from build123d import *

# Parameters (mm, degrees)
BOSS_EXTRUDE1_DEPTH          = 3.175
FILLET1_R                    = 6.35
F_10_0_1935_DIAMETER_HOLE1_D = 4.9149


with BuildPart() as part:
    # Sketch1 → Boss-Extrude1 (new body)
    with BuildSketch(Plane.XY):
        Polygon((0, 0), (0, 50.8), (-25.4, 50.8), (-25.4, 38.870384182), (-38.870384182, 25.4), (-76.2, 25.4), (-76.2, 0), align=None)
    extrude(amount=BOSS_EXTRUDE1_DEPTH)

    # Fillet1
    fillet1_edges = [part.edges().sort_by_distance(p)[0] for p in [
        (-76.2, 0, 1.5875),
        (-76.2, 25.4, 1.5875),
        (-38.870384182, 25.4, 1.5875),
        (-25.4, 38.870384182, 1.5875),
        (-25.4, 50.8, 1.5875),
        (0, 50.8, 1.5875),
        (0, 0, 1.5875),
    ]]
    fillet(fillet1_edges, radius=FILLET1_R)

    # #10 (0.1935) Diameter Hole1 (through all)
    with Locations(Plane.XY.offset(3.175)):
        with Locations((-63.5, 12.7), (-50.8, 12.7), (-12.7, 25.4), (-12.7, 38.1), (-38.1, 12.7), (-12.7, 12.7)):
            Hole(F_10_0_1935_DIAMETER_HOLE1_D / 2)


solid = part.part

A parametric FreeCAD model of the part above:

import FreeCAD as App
import Part
import Sketcher
from FreeCAD import Vector
Q = App.Units.Quantity


def edges_at(feature, points):
    """Names of the edges that pass closest to the given points."""
    edges = feature.Shape.Edges
    near = lambda p: min(range(len(edges)), key=lambda i: edges[i].distToShape(Part.Vertex(*p))[0])
    return sorted({f"Edge{near(p) + 1}" for p in points})

doc = App.newDocument("Part")
params = doc.addObject("Spreadsheet::Sheet", "Params")
for row, (alias, value) in enumerate([
    ("sketch1_width", "1 in"),
    ("sketch1_width2", "3 in"),
    ("sketch1_height", "2 in"),
    ("sketch1_length", "0.75 in"),
    ("pad1_length", "0.125 in"),
    ("fillet_radius", "0.25 in"),
    ("hole_diameter", "0.1935 in"),
], start=1):
    params.set(f"A{row}", alias)
    params.set(f"B{row}", "=" + value)
    params.setAlias(f"B{row}", alias)

body = doc.addObject("PartDesign::Body", "Body")

# Sketch on XY plane
sketch1 = body.newObject("Sketcher::SketchObject", "Sketch")
sketch1.AttachmentSupport = (doc.getObject("XY_Plane"), [""])
sketch1.MapMode = "FlatFace"
sketch1.addGeometry(Part.LineSegment(Vector(0, 0, 0), Vector(0, 51, 0)), False)
sketch1.addGeometry(Part.LineSegment(Vector(0, 51, 0), Vector(-25, 51, 0)), False)
sketch1.addGeometry(Part.LineSegment(Vector(-25, 51, 0), Vector(-25, 39, 0)), False)
sketch1.addGeometry(Part.LineSegment(Vector(-25, 39, 0), Vector(-39, 25, 0)), False)
sketch1.addGeometry(Part.LineSegment(Vector(-39, 25, 0), Vector(-76, 25, 0)), False)
sketch1.addGeometry(Part.LineSegment(Vector(-76, 25, 0), Vector(-76, 0, 0)), False)
sketch1.addGeometry(Part.LineSegment(Vector(-76, 0, 0), Vector(0, 0, 0)), False)
sketch1.addConstraint(Sketcher.Constraint("Coincident", 0, 2, 1, 1))
sketch1.addConstraint(Sketcher.Constraint("Coincident", 1, 2, 2, 1))
sketch1.addConstraint(Sketcher.Constraint("Coincident", 2, 2, 3, 1))
sketch1.addConstraint(Sketcher.Constraint("Coincident", 3, 2, 4, 1))
sketch1.addConstraint(Sketcher.Constraint("Coincident", 4, 2, 5, 1))
sketch1.addConstraint(Sketcher.Constraint("Coincident", 5, 2, 6, 1))
sketch1.addConstraint(Sketcher.Constraint("Coincident", 6, 2, 0, 1))
sketch1.addConstraint(Sketcher.Constraint("Vertical", 0))
sketch1.addConstraint(Sketcher.Constraint("Horizontal", 1))
sketch1.addConstraint(Sketcher.Constraint("Vertical", 2))
sketch1.addConstraint(Sketcher.Constraint("Horizontal", 4))
sketch1.addConstraint(Sketcher.Constraint("Vertical", 5))
sketch1.addConstraint(Sketcher.Constraint("Horizontal", 6))
sketch1.addConstraint(Sketcher.Constraint("Coincident", 6, 2, -1, 1))
sketch1.addConstraint(Sketcher.Constraint("Equal", 1, 5))
sketch1.addConstraint(Sketcher.Constraint("DistanceX", 1, 2, 1, 1, Q("1 in")))
sketch1.addConstraint(Sketcher.Constraint("DistanceX", 6, 1, 6, 2, Q("3 in")))
sketch1.addConstraint(Sketcher.Constraint("DistanceY", 0, 1, 0, 2, Q("2 in")))
sketch1.addConstraint(Sketcher.Constraint("Angle", 3, Q("-135 deg")))
sketch1.addConstraint(Sketcher.Constraint("Distance", 3, Q("0.75 in")))
sketch1.setExpression("Constraints[15]", "Params.sketch1_width")
sketch1.setExpression("Constraints[16]", "Params.sketch1_width2")
sketch1.setExpression("Constraints[17]", "Params.sketch1_height")
sketch1.setExpression("Constraints[19]", "Params.sketch1_length")
pad1 = body.newObject("PartDesign::Pad", "Pad")
pad1.Profile = sketch1
pad1.setExpression("Length", "Params.pad1_length")
doc.recompute()

fillet = body.newObject("PartDesign::Fillet", "Fillet")
fillet.Base = (pad1, edges_at(pad1, [
    (-76.2, 0, 1.587),
    (-76.2, 25.4, 1.587),
    (-38.87, 25.4, 1.587),
    (-25.4, 38.87, 1.587),
    (-25.4, 50.8, 1.587),
    (0, 50.8, 1.587),
    (0, 0, 1.587),
]))
fillet.setExpression("Radius", "Params.fillet_radius")

# Sketch on XY plane
sketch2 = body.newObject("Sketcher::SketchObject", "Sketch001")
sketch2.AttachmentSupport = (doc.getObject("XY_Plane"), [""])
sketch2.MapMode = "FlatFace"
sketch2.AttachmentOffset = App.Placement(Vector(0, 0, 0.125 * 25.4), App.Rotation())
sketch2.addGeometry(Part.Circle(Vector(-63.5, 12.7, 0), Vector(0, 0, 1), 2.5), False)
sketch2.addGeometry(Part.Circle(Vector(-50.8, 12.7, 0), Vector(0, 0, 1), 2.5), False)
sketch2.addGeometry(Part.Circle(Vector(-12.7, 25.4, 0), Vector(0, 0, 1), 2.5), False)
sketch2.addGeometry(Part.Circle(Vector(-12.7, 38.1, 0), Vector(0, 0, 1), 2.5), False)
sketch2.addGeometry(Part.Circle(Vector(-38.1, 12.7, 0), Vector(0, 0, 1), 2.5), False)
sketch2.addGeometry(Part.Circle(Vector(-12.7, 12.7, 0), Vector(0, 0, 1), 2.5), False)
sketch2.addConstraint(Sketcher.Constraint("Equal", 0, 1))
sketch2.addConstraint(Sketcher.Constraint("Equal", 1, 2))
sketch2.addConstraint(Sketcher.Constraint("Equal", 2, 3))
sketch2.addConstraint(Sketcher.Constraint("Equal", 3, 4))
sketch2.addConstraint(Sketcher.Constraint("Equal", 4, 5))
sketch2.addConstraint(Sketcher.Constraint("Horizontal", 0, 3, 1, 3))
sketch2.addConstraint(Sketcher.Constraint("Horizontal", 1, 3, 4, 3))
sketch2.addConstraint(Sketcher.Constraint("Horizontal", 4, 3, 5, 3))
sketch2.addConstraint(Sketcher.Constraint("Vertical", 2, 3, 3, 3))
sketch2.addConstraint(Sketcher.Constraint("Vertical", 3, 3, 5, 3))
sketch2.addConstraint(Sketcher.Constraint("DistanceX", 1, 3, -1, 1, Q("2 in")))
sketch2.addConstraint(Sketcher.Constraint("DistanceY", -1, 1, 2, 3, Q("1 in")))
sketch2.addConstraint(Sketcher.Constraint("DistanceX", 0, 3, 2, 3, Q("2 in")))
sketch2.addConstraint(Sketcher.Constraint("DistanceY", 1, 3, 3, 3, Q("1 in")))
sketch2.addConstraint(Sketcher.Constraint("DistanceX", 0, 3, 4, 3, Q("1 in")))
sketch2.addConstraint(Sketcher.Constraint("Diameter", 0, Q("0.1935 in")))
sketch2.addConstraint(Sketcher.Constraint("DistanceX", 0, 3, -1, 1, Q("2.5 in")))
sketch2.addConstraint(Sketcher.Constraint("DistanceY", -1, 1, 0, 3, Q("0.5 in")))
doc.recompute()
hole = body.newObject("PartDesign::Hole", "Hole")
hole.Profile = sketch2
hole.ThreadType = "None"
hole.setExpression("Diameter", "Params.hole_diameter")
hole.DepthType = "ThroughAll"

doc.recompute()
